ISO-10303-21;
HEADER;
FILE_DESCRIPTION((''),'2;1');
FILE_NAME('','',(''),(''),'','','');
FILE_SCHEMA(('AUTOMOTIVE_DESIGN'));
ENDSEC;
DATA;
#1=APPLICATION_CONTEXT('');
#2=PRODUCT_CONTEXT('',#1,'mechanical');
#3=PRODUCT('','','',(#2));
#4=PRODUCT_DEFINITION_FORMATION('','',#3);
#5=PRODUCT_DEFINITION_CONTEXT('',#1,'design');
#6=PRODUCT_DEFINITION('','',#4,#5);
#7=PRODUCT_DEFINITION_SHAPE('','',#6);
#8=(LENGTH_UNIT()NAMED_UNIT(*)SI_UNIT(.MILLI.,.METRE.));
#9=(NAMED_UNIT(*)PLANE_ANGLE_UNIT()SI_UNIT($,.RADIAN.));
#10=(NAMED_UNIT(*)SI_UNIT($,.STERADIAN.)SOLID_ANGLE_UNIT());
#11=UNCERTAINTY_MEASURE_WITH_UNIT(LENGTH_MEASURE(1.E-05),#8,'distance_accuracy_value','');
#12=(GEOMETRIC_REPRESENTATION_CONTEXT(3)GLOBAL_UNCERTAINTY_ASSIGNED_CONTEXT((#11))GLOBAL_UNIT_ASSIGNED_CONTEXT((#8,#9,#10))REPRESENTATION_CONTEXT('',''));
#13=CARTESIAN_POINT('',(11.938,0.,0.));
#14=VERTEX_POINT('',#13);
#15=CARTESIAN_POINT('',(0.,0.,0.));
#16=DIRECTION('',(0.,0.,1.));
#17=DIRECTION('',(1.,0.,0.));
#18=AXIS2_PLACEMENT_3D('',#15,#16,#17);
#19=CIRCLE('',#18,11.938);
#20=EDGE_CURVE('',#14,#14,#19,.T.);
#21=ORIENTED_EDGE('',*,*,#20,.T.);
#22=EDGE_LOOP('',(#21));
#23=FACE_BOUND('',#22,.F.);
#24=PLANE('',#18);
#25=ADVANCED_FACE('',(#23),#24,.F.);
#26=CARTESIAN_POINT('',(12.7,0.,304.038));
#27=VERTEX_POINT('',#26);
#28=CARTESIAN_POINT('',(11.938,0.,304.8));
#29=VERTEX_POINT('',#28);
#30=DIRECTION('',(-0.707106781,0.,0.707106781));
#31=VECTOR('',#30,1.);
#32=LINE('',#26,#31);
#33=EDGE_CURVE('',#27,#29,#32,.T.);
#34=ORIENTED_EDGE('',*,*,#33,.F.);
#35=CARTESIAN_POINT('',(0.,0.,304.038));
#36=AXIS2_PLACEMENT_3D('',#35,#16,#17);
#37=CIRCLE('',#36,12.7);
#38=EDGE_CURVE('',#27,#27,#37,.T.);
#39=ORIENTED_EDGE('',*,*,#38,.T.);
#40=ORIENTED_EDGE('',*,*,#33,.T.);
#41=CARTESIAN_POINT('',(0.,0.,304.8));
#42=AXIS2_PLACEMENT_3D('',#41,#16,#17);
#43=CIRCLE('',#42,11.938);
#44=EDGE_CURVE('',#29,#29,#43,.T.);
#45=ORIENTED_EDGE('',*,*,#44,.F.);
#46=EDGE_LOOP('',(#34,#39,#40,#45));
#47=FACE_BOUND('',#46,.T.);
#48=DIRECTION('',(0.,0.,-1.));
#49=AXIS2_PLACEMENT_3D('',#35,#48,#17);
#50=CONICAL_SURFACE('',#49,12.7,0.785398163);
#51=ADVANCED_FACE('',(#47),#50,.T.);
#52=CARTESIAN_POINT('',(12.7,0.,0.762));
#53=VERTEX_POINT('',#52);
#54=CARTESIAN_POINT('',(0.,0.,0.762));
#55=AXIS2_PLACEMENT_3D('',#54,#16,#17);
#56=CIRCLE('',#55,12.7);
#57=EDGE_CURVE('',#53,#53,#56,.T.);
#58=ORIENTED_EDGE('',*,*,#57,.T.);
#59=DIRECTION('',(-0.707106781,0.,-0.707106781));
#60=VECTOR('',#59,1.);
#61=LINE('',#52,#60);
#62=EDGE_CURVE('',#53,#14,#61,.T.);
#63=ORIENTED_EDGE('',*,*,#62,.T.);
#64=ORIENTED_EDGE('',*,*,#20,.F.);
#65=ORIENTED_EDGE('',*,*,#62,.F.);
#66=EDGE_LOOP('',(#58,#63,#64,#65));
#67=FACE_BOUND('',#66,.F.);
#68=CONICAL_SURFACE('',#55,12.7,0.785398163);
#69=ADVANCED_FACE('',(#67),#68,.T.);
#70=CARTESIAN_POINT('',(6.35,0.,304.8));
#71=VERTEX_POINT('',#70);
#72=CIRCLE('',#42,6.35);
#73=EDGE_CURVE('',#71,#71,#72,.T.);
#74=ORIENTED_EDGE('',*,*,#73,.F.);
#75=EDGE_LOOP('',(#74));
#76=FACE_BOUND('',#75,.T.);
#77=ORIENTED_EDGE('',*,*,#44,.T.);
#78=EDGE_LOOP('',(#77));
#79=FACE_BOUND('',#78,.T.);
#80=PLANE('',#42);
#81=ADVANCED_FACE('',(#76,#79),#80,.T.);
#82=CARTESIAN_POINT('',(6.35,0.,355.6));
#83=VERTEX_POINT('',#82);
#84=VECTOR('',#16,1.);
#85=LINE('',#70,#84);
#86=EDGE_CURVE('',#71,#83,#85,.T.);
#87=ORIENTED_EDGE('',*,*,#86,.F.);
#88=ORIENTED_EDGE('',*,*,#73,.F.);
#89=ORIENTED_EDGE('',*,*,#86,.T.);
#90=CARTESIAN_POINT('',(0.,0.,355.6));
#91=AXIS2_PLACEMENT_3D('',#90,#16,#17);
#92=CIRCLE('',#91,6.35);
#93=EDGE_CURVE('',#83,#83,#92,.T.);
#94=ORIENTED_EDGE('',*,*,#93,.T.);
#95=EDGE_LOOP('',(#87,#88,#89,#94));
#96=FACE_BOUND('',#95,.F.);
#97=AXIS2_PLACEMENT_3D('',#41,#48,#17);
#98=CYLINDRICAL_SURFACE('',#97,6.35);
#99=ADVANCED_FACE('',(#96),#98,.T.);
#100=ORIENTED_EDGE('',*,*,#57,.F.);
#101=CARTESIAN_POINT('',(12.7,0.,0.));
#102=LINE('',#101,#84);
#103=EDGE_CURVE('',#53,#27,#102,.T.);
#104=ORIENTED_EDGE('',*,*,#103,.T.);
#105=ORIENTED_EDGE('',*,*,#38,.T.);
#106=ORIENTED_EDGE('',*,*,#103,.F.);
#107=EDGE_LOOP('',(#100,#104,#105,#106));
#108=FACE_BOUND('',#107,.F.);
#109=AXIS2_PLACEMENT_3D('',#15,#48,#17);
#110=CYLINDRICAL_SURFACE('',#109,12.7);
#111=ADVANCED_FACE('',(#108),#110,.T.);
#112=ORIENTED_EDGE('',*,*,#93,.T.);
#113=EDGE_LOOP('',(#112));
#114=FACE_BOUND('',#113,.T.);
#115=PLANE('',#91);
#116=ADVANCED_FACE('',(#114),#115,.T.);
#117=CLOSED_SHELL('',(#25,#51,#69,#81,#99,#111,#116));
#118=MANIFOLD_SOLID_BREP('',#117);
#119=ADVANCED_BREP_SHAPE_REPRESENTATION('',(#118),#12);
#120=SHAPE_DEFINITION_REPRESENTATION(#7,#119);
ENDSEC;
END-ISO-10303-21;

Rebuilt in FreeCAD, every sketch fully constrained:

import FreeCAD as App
import Part
import Sketcher
Q = App.Units.Quantity


def edges_at(feature, points):
    """Names of the edges that pass closest to the given points."""
    edges = feature.Shape.Edges
    near = lambda p: min(range(len(edges)), key=lambda i: edges[i].distToShape(Part.Vertex(*p))[0])
    return sorted({f"Edge{near(p) + 1}" for p in points})

doc = App.newDocument("Part")
body = doc.addObject("PartDesign::Body", "Body")

sketch1 = body.newObject("Sketcher::SketchObject", "Sketch")
sketch1.AttachmentSupport = (doc.getObject("XY_Plane"), [""])
sketch1.MapMode = "FlatFace"
sketch1.addGeometry(Part.Circle(App.Vector(0, 0, 0), App.Vector(0, 0, 1), 13), False)
sketch1.addConstraint([
    Sketcher.Constraint("Coincident", 0, 3, -1, 1),
    Sketcher.Constraint("Diameter", 0, Q("1 in")),
])
pad1 = body.newObject("PartDesign::Pad", "Pad")
pad1.Profile = sketch1
pad1.Length = Q("12 in")
doc.recompute()

chamfer = body.newObject("PartDesign::Chamfer", "Chamfer")
chamfer.Base = (pad1, edges_at(pad1, [(-12.7, 0, 0), (-12.7, 0, 304.8)]))
chamfer.Size = Q("0.03 in")

sketch2 = body.newObject("Sketcher::SketchObject", "Sketch001")
sketch2.AttachmentSupport = (doc.getObject("XY_Plane"), [""])
sketch2.MapMode = "FlatFace"
sketch2.AttachmentOffset = App.Placement(App.Vector(0, 0, 12 * 25.4), App.Rotation())
sketch2.addGeometry(Part.Circle(App.Vector(0, 0, 0), App.Vector(0, 0, 1), 6), False)
sketch2.addConstraint([
    Sketcher.Constraint("Coincident", 0, 3, -1, 1),
    Sketcher.Constraint("Diameter", 0, Q("0.5 in")),
])
pad2 = body.newObject("PartDesign::Pad", "Pad001")
pad2.Profile = sketch2
pad2.Length = Q("2 in")

doc.recompute()
